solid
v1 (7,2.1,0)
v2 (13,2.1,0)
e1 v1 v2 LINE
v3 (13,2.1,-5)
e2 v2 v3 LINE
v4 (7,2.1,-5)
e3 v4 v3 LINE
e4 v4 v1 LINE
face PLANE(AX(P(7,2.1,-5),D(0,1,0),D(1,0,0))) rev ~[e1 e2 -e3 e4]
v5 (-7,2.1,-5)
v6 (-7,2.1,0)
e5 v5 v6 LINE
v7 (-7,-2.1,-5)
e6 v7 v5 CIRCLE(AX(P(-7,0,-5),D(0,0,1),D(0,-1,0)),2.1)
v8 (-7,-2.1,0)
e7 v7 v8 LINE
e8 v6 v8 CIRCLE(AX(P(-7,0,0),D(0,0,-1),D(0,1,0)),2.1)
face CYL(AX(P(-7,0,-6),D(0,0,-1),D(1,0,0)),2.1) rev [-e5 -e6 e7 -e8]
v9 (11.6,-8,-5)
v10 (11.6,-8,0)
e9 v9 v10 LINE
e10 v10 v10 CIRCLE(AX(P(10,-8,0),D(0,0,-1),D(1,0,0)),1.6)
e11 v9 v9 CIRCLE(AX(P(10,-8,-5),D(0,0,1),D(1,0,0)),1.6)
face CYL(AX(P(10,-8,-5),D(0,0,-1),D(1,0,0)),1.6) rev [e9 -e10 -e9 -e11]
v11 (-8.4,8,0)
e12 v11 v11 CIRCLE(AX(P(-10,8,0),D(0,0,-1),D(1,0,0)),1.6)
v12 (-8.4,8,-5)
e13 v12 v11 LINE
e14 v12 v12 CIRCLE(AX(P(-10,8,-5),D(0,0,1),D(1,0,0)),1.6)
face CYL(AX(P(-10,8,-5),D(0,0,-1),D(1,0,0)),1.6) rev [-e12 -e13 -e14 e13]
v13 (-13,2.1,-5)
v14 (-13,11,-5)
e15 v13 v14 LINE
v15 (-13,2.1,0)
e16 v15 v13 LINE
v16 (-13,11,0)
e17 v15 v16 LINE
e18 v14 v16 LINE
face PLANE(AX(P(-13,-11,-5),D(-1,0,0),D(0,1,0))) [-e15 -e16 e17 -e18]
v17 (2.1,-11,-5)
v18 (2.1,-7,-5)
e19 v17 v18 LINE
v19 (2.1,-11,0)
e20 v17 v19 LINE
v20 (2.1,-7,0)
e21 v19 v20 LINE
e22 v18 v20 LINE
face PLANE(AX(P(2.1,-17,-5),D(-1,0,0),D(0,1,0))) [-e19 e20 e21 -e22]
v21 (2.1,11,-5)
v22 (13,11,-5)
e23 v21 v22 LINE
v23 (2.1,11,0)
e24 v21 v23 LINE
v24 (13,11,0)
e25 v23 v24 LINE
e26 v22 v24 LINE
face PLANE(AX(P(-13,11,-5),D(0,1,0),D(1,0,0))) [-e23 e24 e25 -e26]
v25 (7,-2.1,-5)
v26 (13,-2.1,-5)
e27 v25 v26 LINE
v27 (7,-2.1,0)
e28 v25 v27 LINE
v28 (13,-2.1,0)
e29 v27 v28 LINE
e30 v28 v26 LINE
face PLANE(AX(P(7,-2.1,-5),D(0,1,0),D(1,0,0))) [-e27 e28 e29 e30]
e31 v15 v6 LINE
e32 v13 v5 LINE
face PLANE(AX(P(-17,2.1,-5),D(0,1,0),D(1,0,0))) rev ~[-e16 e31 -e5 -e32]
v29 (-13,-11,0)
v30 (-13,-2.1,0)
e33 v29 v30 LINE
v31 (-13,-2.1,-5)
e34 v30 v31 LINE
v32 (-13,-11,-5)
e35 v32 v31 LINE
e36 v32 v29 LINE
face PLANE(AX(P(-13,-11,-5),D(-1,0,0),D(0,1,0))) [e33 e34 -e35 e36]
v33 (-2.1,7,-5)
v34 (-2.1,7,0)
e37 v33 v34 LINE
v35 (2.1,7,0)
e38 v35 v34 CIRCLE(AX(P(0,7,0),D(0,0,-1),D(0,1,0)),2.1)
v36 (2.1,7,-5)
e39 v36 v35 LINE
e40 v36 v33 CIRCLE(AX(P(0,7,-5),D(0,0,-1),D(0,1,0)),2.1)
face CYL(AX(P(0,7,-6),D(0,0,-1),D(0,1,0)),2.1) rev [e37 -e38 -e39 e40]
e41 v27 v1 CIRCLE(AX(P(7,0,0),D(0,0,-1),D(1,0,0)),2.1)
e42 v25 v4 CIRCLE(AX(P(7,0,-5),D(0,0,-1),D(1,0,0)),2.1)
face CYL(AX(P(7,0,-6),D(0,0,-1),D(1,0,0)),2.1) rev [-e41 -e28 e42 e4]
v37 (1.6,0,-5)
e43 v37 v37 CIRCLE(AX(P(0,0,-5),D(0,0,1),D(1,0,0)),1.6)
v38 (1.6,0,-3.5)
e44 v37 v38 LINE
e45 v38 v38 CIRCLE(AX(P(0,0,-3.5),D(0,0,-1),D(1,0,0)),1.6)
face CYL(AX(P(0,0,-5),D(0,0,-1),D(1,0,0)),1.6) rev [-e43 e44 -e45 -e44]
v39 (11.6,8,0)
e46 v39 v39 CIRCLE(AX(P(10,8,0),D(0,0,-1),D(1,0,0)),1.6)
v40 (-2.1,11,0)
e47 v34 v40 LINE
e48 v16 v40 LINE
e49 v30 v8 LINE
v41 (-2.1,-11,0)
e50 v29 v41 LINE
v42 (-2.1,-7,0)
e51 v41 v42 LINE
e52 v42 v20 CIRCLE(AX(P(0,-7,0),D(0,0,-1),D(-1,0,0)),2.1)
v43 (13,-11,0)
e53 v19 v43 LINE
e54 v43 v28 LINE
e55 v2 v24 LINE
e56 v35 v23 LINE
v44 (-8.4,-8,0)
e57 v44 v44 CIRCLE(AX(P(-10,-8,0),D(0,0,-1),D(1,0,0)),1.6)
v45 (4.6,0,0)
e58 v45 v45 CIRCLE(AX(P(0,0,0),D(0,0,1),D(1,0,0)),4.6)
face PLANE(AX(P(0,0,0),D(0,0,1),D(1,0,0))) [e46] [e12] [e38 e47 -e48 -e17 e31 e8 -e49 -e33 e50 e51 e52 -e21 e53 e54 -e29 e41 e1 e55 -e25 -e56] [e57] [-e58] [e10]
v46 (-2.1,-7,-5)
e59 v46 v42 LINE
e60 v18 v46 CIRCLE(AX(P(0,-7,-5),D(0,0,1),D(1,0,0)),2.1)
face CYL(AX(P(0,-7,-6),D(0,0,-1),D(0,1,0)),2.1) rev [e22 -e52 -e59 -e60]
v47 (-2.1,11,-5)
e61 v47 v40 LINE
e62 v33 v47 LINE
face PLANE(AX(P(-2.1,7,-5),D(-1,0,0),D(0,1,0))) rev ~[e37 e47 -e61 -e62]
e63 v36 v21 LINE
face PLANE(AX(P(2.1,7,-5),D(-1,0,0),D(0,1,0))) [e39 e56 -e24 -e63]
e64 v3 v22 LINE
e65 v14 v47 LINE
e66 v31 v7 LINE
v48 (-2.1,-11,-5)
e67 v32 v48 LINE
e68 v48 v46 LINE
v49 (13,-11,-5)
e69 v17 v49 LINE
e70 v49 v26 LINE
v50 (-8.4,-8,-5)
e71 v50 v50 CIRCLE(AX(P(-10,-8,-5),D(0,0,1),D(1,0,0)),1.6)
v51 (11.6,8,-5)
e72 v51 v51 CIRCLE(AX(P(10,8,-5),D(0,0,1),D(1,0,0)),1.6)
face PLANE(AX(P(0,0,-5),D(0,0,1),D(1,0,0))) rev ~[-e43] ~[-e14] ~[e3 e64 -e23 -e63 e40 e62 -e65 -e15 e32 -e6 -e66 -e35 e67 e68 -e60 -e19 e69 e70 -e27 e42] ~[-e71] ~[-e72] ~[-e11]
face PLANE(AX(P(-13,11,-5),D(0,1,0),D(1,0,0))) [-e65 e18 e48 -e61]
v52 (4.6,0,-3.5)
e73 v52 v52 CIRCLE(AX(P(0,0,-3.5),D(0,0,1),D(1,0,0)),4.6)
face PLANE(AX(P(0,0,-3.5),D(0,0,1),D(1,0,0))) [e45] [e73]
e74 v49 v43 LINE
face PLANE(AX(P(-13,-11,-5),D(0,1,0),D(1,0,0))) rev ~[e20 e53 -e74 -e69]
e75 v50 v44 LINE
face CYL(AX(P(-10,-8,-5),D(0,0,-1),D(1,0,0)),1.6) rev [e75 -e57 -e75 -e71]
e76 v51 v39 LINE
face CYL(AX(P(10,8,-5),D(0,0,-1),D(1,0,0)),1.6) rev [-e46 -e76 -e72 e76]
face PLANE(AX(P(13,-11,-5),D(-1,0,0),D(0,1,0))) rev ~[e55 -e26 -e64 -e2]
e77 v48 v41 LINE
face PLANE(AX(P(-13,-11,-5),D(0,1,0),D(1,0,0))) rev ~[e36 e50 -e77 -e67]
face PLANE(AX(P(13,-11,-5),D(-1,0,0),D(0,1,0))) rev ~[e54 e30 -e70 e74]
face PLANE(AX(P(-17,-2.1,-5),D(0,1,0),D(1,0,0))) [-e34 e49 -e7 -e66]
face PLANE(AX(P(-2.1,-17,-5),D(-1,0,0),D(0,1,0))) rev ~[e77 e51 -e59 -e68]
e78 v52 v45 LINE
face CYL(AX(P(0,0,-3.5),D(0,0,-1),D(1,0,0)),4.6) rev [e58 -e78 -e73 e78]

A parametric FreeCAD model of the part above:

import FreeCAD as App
import Part
import Sketcher

V = App.Vector
Q = App.Units.Quantity


def add_polygon(sketch, points):
    """Adds a closed chain of lines whose ends are joined by coincident constraints."""
    first, n = sketch.GeometryCount, len(points)
    for a, b in zip(points, points[1:] + points[:1]):
        sketch.addGeometry(Part.LineSegment(App.Vector(*a, 0), App.Vector(*b, 0)), False)
    for i in range(n):
        sketch.addConstraint(Sketcher.Constraint("Coincident", first + i, 2, first + (i + 1) % n, 1))

doc = App.newDocument("Part")
params = doc.addObject("Spreadsheet::Sheet", "Params")
for row, (alias, value) in enumerate([
    ("sketch1_diameter", "9.2 mm"),
    ("pad1_length", "3.5 mm"),
    ("sketch2_height", "10 mm"),
    ("sketch2_width", "4.2 mm"),
    ("pad2_length", "5 mm"),
    ("sketch3_width", "10 mm"),
    ("sketch3_height", "4.2 mm"),
    ("pad3_length", "5 mm"),
    ("sketch4_height", "10 mm"),
    ("sketch4_width", "4.2 mm"),
    ("pad4_length", "5 mm"),
    ("sketch5_width", "10 mm"),
    ("sketch5_height", "4.2 mm"),
    ("pad5_length", "5 mm"),
    ("sketch6_diameter", "4.2 mm"),
    ("pad6_length", "15 mm"),
    ("sketch7_diameter", "4.2 mm"),
    ("pad7_length", "15 mm"),
    ("sketch8_diameter", "4.2 mm"),
    ("pad8_length", "15 mm"),
    ("sketch9_diameter", "4.2 mm"),
    ("pad9_length", "15 mm"),
    ("sketch10_diameter", "3.2 mm"),
    ("pad10_length", "15 mm"),
    ("sketch11_diameter", "3.2 mm"),
    ("pad11_length", "15 mm"),
    ("sketch12_diameter", "3.2 mm"),
    ("pad12_length", "15 mm"),
    ("sketch13_diameter", "3.2 mm"),
    ("pad13_length", "15 mm"),
    ("sketch14_diameter", "3.2 mm"),
    ("pad14_length", "15 mm"),
    ("sketch15_width", "26 mm"),
    ("sketch15_height", "22 mm"),
    ("pad15_length", "5 mm"),
], start=1):
    params.set(f"A{row}", alias)
    params.set(f"B{row}", "=" + value)
    params.setAlias(f"B{row}", alias)

body = doc.addObject("PartDesign::Body", "Body")

sketch1 = doc.addObject("Sketcher::SketchObject", "Sketch")
body.addObject(sketch1)
sketch1.AttachmentSupport = (doc.XY_Plane, [""])
sketch1.MapMode = "FlatFace"
sketch1.AttachmentOffset = App.Placement(V(0, 0, -3.5), App.Rotation())
sketch1.addGeometry(Part.Circle(V(0, 0, 0), V(0, 0, 1), 4.6), False)
sketch1.addConstraint([
    Sketcher.Constraint("Coincident", 0, 3, -1, 1),
    Sketcher.Constraint("Diameter", 0, Q("9.2 mm")),
])
sketch1.setExpression("Constraints[1]", "Params.sketch1_diameter")
pad1 = doc.addObject("PartDesign::Pad", "Pad")
body.addObject(pad1)
pad1.Profile = sketch1
pad1.setExpression("Length", "Params.pad1_length")
body2 = doc.addObject("PartDesign::Body", "Body001")

sketch2 = doc.addObject("Sketcher::SketchObject", "Sketch001")
body2.addObject(sketch2)
sketch2.AttachmentSupport = (doc.getObject("XY_Plane001"), [""])
sketch2.MapMode = "FlatFace"
sketch2.AttachmentOffset = App.Placement(V(0, 0, -2), App.Rotation())
add_polygon(sketch2, [(-2.1, -7), (-2.1, -17), (2.1, -17), (2.1, -7)])
sketch2.addConstraint([
    Sketcher.Constraint("Vertical", 0),
    Sketcher.Constraint("Horizontal", 1),
    Sketcher.Constraint("Vertical", 2),
    Sketcher.Constraint("Horizontal", 3),
    Sketcher.Constraint("DistanceY", 0, 2, 0, 1, Q("10 mm")),
    Sketcher.Constraint("DistanceX", 1, 1, 1, 2, Q("4.2 mm")),
    Sketcher.Constraint("DistanceY", 0, 2, -1, 1, Q("17 mm")),
    Sketcher.Constraint("DistanceX", 0, 2, -1, 1, Q("2.1 mm")),
])
sketch2.setExpression("Constraints[8]", "Params.sketch2_height")
sketch2.setExpression("Constraints[9]", "Params.sketch2_width")
pad2 = doc.addObject("PartDesign::Pad", "Pad001")
body2.addObject(pad2)
pad2.Profile = sketch2
pad2.setExpression("Length", "Params.pad2_length")
body3 = doc.addObject("PartDesign::Body", "Body002")

sketch3 = doc.addObject("Sketcher::SketchObject", "Sketch002")
body3.addObject(sketch3)
sketch3.AttachmentSupport = (doc.getObject("XY_Plane002"), [""])
sketch3.MapMode = "FlatFace"
sketch3.AttachmentOffset = App.Placement(V(0, 0, -2), App.Rotation())
add_polygon(sketch3, [(-17, 2.1), (-17, -2.1), (-7, -2.1), (-7, 2.1)])
sketch3.addConstraint([
    Sketcher.Constraint("Vertical", 0),
    Sketcher.Constraint("Horizontal", 1),
    Sketcher.Constraint("Vertical", 2),
    Sketcher.Constraint("Horizontal", 3),
    Sketcher.Constraint("DistanceX", 1, 1, 1, 2, Q("10 mm")),
    Sketcher.Constraint("DistanceY", 0, 2, 0, 1, Q("4.2 mm")),
    Sketcher.Constraint("DistanceX", 0, 2, -1, 1, Q("17 mm")),
    Sketcher.Constraint("DistanceY", 0, 2, -1, 1, Q("2.1 mm")),
])
sketch3.setExpression("Constraints[8]", "Params.sketch3_width")
sketch3.setExpression("Constraints[9]", "Params.sketch3_height")
pad3 = doc.addObject("PartDesign::Pad", "Pad002")
body3.addObject(pad3)
pad3.Profile = sketch3
pad3.setExpression("Length", "Params.pad3_length")
body4 = doc.addObject("PartDesign::Body", "Body003")

sketch4 = doc.addObject("Sketcher::SketchObject", "Sketch003")
body4.addObject(sketch4)
sketch4.AttachmentSupport = (doc.getObject("XY_Plane003"), [""])
sketch4.MapMode = "FlatFace"
sketch4.AttachmentOffset = App.Placement(V(0, 0, -2), App.Rotation())
add_polygon(sketch4, [(-2.1, 17), (-2.1, 7), (2.1, 7), (2.1, 17)])
sketch4.addConstraint([
    Sketcher.Constraint("Vertical", 0),
    Sketcher.Constraint("Horizontal", 1),
    Sketcher.Constraint("Vertical", 2),
    Sketcher.Constraint("Horizontal", 3),
    Sketcher.Constraint("DistanceY", 0, 2, 0, 1, Q("10 mm")),
    Sketcher.Constraint("DistanceX", 1, 1, 1, 2, Q("4.2 mm")),
    Sketcher.Constraint("DistanceY", -1, 1, 0, 2, Q("7 mm")),
    Sketcher.Constraint("DistanceX", 0, 2, -1, 1, Q("2.1 mm")),
])
sketch4.setExpression("Constraints[8]", "Params.sketch4_height")
sketch4.setExpression("Constraints[9]", "Params.sketch4_width")
pad4 = doc.addObject("PartDesign::Pad", "Pad003")
body4.addObject(pad4)
pad4.Profile = sketch4
pad4.setExpression("Length", "Params.pad4_length")
body5 = doc.addObject("PartDesign::Body", "Body004")
body5.AllowCompound = True

sketch5 = doc.addObject("Sketcher::SketchObject", "Sketch004")
body5.addObject(sketch5)
sketch5.AttachmentSupport = (doc.getObject("XY_Plane004"), [""])
sketch5.MapMode = "FlatFace"
sketch5.AttachmentOffset = App.Placement(V(0, 0, -2), App.Rotation())
add_polygon(sketch5, [(7, 2.1), (7, -2.1), (17, -2.1), (17, 2.1)])
sketch5.addConstraint([
    Sketcher.Constraint("Vertical", 0),
    Sketcher.Constraint("Horizontal", 1),
    Sketcher.Constraint("Vertical", 2),
    Sketcher.Constraint("Horizontal", 3),
    Sketcher.Constraint("DistanceX", 1, 1, 1, 2, Q("10 mm")),
    Sketcher.Constraint("DistanceY", 0, 2, 0, 1, Q("4.2 mm")),
    Sketcher.Constraint("DistanceX", -1, 1, 0, 2, Q("7 mm")),
    Sketcher.Constraint("DistanceY", 0, 2, -1, 1, Q("2.1 mm")),
])
sketch5.setExpression("Constraints[8]", "Params.sketch5_width")
sketch5.setExpression("Constraints[9]", "Params.sketch5_height")
pad5 = doc.addObject("PartDesign::Pad", "Pad004")
body5.addObject(pad5)
pad5.Profile = sketch5
pad5.setExpression("Length", "Params.pad5_length")
doc.recompute()

boolean = doc.addObject("PartDesign::Boolean", "Boolean")
body5.addObject(boolean)
boolean.Type = "Fuse"
boolean.addObjects([body2])
doc.recompute()

boolean2 = doc.addObject("PartDesign::Boolean", "Boolean001")
body5.addObject(boolean2)
boolean2.Type = "Fuse"
boolean2.addObjects([body3])
doc.recompute()

boolean3 = doc.addObject("PartDesign::Boolean", "Boolean002")
body5.addObject(boolean3)
boolean3.Type = "Fuse"
boolean3.addObjects([body4])
body6 = doc.addObject("PartDesign::Body", "Body005")

sketch6 = doc.addObject("Sketcher::SketchObject", "Sketch005")
body6.addObject(sketch6)
sketch6.AttachmentSupport = (doc.getObject("XY_Plane005"), [""])
sketch6.MapMode = "FlatFace"
sketch6.addGeometry(Part.Circle(V(7, 0, 0), V(0, 0, 1), 2.1), False)
sketch6.addConstraint([
    Sketcher.Constraint("PointOnObject", 0, 3, -1),
    Sketcher.Constraint("Diameter", 0, Q("4.2 mm")),
    Sketcher.Constraint("DistanceX", -1, 1, 0, 3, Q("7 mm")),
])
sketch6.setExpression("Constraints[1]", "Params.sketch6_diameter")
pad6 = doc.addObject("PartDesign::Pad", "Pad005")
body6.addObject(pad6)
pad6.Profile = sketch6
pad6.setExpression("Length", "Params.pad6_length")
body7 = doc.addObject("PartDesign::Body", "Body006")
body7.AllowCompound = True

sketch7 = doc.addObject("Sketcher::SketchObject", "Sketch006")
body7.addObject(sketch7)
sketch7.AttachmentSupport = (doc.getObject("XY_Plane006"), [""])
sketch7.MapMode = "FlatFace"
sketch7.addGeometry(Part.Circle(V(-7, 0, 0), V(0, 0, 1), 2.1), False)
sketch7.addConstraint([
    Sketcher.Constraint("PointOnObject", 0, 3, -1),
    Sketcher.Constraint("Diameter", 0, Q("4.2 mm")),
    Sketcher.Constraint("DistanceX", 0, 3, -1, 1, Q("7 mm")),
])
sketch7.setExpression("Constraints[1]", "Params.sketch7_diameter")
pad7 = doc.addObject("PartDesign::Pad", "Pad006")
body7.addObject(pad7)
pad7.Profile = sketch7
pad7.setExpression("Length", "Params.pad7_length")
doc.recompute()

boolean4 = doc.addObject("PartDesign::Boolean", "Boolean003")
body7.addObject(boolean4)
boolean4.Type = "Fuse"
boolean4.addObjects([body6])
body8 = doc.addObject("PartDesign::Body", "Body007")

sketch8 = doc.addObject("Sketcher::SketchObject", "Sketch007")
body8.addObject(sketch8)
sketch8.AttachmentSupport = (doc.getObject("XY_Plane007"), [""])
sketch8.MapMode = "FlatFace"
sketch8.addGeometry(Part.Circle(V(7, 0, 0), V(0, 0, 1), 2.1), False)
sketch8.addConstraint([
    Sketcher.Constraint("PointOnObject", 0, 3, -1),
    Sketcher.Constraint("Diameter", 0, Q("4.2 mm")),
    Sketcher.Constraint("DistanceX", -1, 1, 0, 3, Q("7 mm")),
])
sketch8.setExpression("Constraints[1]", "Params.sketch8_diameter")
pad8 = doc.addObject("PartDesign::Pad", "Pad007")
body8.addObject(pad8)
pad8.Profile = sketch8
pad8.setExpression("Length", "Params.pad8_length")
body9 = doc.addObject("PartDesign::Body", "Body008")
body9.AllowCompound = True

sketch9 = doc.addObject("Sketcher::SketchObject", "Sketch008")
body9.addObject(sketch9)
sketch9.AttachmentSupport = (doc.getObject("XY_Plane008"), [""])
sketch9.MapMode = "FlatFace"
sketch9.addGeometry(Part.Circle(V(-7, 0, 0), V(0, 0, 1), 2.1), False)
sketch9.addConstraint([
    Sketcher.Constraint("PointOnObject", 0, 3, -1),
    Sketcher.Constraint("Diameter", 0, Q("4.2 mm")),
    Sketcher.Constraint("DistanceX", 0, 3, -1, 1, Q("7 mm")),
])
sketch9.setExpression("Constraints[1]", "Params.sketch9_diameter")
pad9 = doc.addObject("PartDesign::Pad", "Pad008")
body9.addObject(pad9)
pad9.Profile = sketch9
pad9.setExpression("Length", "Params.pad9_length")
doc.recompute()

boolean5 = doc.addObject("PartDesign::Boolean", "Boolean004")
body9.addObject(boolean5)
boolean5.Type = "Fuse"
boolean5.addObjects([body8])
body10 = doc.addObject("PartDesign::Body", "Body009")
body10.AllowCompound = True
doc.recompute()

body9.Placement = App.Placement(V(0, 0, 0), App.Rotation(V(0, 0, 1), 90))
boolean6 = doc.addObject("PartDesign::Boolean", "Boolean005")
body10.addObject(boolean6)
boolean6.Type = "Fuse"
boolean6.addObjects([body9])
doc.recompute()

boolean7 = doc.addObject("PartDesign::Boolean", "Boolean006")
body10.addObject(boolean7)
boolean7.Type = "Fuse"
boolean7.addObjects([body7])
body11 = doc.addObject("PartDesign::Body", "Body010")
body11.AllowCompound = True
doc.recompute()

body10.Placement = App.Placement(V(0, 0, -3), App.Rotation(V(0, 0, 1), 0))
boolean8 = doc.addObject("PartDesign::Boolean", "Boolean007")
body11.addObject(boolean8)
boolean8.Type = "Fuse"
boolean8.addObjects([body10])
body12 = doc.addObject("PartDesign::Body", "Body011")

sketch10 = doc.addObject("Sketcher::SketchObject", "Sketch009")
body12.addObject(sketch10)
sketch10.AttachmentSupport = (doc.getObject("XY_Plane011"), [""])
sketch10.MapMode = "FlatFace"
sketch10.AttachmentOffset = App.Placement(V(0, 0, -2), App.Rotation())
sketch10.addGeometry(Part.Circle(V(-10, -8, 0), V(0, 0, 1), 1.6), False)
sketch10.addConstraint([
    Sketcher.Constraint("Diameter", 0, Q("3.2 mm")),
    Sketcher.Constraint("DistanceX", 0, 3, -1, 1, Q("10 mm")),
    Sketcher.Constraint("DistanceY", 0, 3, -1, 1, Q("8 mm")),
])
sketch10.setExpression("Constraints[0]", "Params.sketch10_diameter")
pad10 = doc.addObject("PartDesign::Pad", "Pad009")
body12.addObject(pad10)
pad10.Profile = sketch10
pad10.setExpression("Length", "Params.pad10_length")
body13 = doc.addObject("PartDesign::Body", "Body012")

sketch11 = doc.addObject("Sketcher::SketchObject", "Sketch010")
body13.addObject(sketch11)
sketch11.AttachmentSupport = (doc.getObject("XY_Plane012"), [""])
sketch11.MapMode = "FlatFace"
sketch11.AttachmentOffset = App.Placement(V(0, 0, -2), App.Rotation())
sketch11.addGeometry(Part.Circle(V(10, 8, 0), V(0, 0, 1), 1.6), False)
sketch11.addConstraint([
    Sketcher.Constraint("Diameter", 0, Q("3.2 mm")),
    Sketcher.Constraint("DistanceX", -1, 1, 0, 3, Q("10 mm")),
    Sketcher.Constraint("DistanceY", -1, 1, 0, 3, Q("8 mm")),
])
sketch11.setExpression("Constraints[0]", "Params.sketch11_diameter")
pad11 = doc.addObject("PartDesign::Pad", "Pad010")
body13.addObject(pad11)
pad11.Profile = sketch11
pad11.setExpression("Length", "Params.pad11_length")
body14 = doc.addObject("PartDesign::Body", "Body013")

sketch12 = doc.addObject("Sketcher::SketchObject", "Sketch011")
body14.addObject(sketch12)
sketch12.AttachmentSupport = (doc.getObject("XY_Plane013"), [""])
sketch12.MapMode = "FlatFace"
sketch12.AttachmentOffset = App.Placement(V(0, 0, -2), App.Rotation())
sketch12.addGeometry(Part.Circle(V(10, -8, 0), V(0, 0, 1), 1.6), False)
sketch12.addConstraint([
    Sketcher.Constraint("Diameter", 0, Q("3.2 mm")),
    Sketcher.Constraint("DistanceX", -1, 1, 0, 3, Q("10 mm")),
    Sketcher.Constraint("DistanceY", 0, 3, -1, 1, Q("8 mm")),
])
sketch12.setExpression("Constraints[0]", "Params.sketch12_diameter")
pad12 = doc.addObject("PartDesign::Pad", "Pad011")
body14.addObject(pad12)
pad12.Profile = sketch12
pad12.setExpression("Length", "Params.pad12_length")
body15 = doc.addObject("PartDesign::Body", "Body014")

sketch13 = doc.addObject("Sketcher::SketchObject", "Sketch012")
body15.addObject(sketch13)
sketch13.AttachmentSupport = (doc.getObject("XY_Plane014"), [""])
sketch13.MapMode = "FlatFace"
sketch13.AttachmentOffset = App.Placement(V(0, 0, -2), App.Rotation())
sketch13.addGeometry(Part.Circle(V(0, 0, 0), V(0, 0, 1), 1.6), False)
sketch13.addConstraint([
    Sketcher.Constraint("Coincident", 0, 3, -1, 1),
    Sketcher.Constraint("Diameter", 0, Q("3.2 mm")),
])
sketch13.setExpression("Constraints[1]", "Params.sketch13_diameter")
pad13 = doc.addObject("PartDesign::Pad", "Pad012")
body15.addObject(pad13)
pad13.Profile = sketch13
pad13.setExpression("Length", "Params.pad13_length")
body16 = doc.addObject("PartDesign::Body", "Body015")
body16.AllowCompound = True

sketch14 = doc.addObject("Sketcher::SketchObject", "Sketch013")
body16.addObject(sketch14)
sketch14.AttachmentSupport = (doc.getObject("XY_Plane015"), [""])
sketch14.MapMode = "FlatFace"
sketch14.AttachmentOffset = App.Placement(V(0, 0, -2), App.Rotation())
sketch14.addGeometry(Part.Circle(V(-10, 8, 0), V(0, 0, 1), 1.6), False)
sketch14.addConstraint([
    Sketcher.Constraint("Diameter", 0, Q("3.2 mm")),
    Sketcher.Constraint("DistanceX", 0, 3, -1, 1, Q("10 mm")),
    Sketcher.Constraint("DistanceY", -1, 1, 0, 3, Q("8 mm")),
])
sketch14.setExpression("Constraints[0]", "Params.sketch14_diameter")
pad14 = doc.addObject("PartDesign::Pad", "Pad013")
body16.addObject(pad14)
pad14.Profile = sketch14
pad14.setExpression("Length", "Params.pad14_length")
doc.recompute()

boolean9 = doc.addObject("PartDesign::Boolean", "Boolean008")
body16.addObject(boolean9)
boolean9.Type = "Fuse"
boolean9.addObjects([body12])
doc.recompute()

boolean10 = doc.addObject("PartDesign::Boolean", "Boolean009")
body16.addObject(boolean10)
boolean10.Type = "Fuse"
boolean10.addObjects([body13])
doc.recompute()

boolean11 = doc.addObject("PartDesign::Boolean", "Boolean010")
body16.addObject(boolean11)
boolean11.Type = "Fuse"
boolean11.addObjects([body14])
doc.recompute()

boolean12 = doc.addObject("PartDesign::Boolean", "Boolean011")
body16.addObject(boolean12)
boolean12.Type = "Fuse"
boolean12.addObjects([body15])
body17 = doc.addObject("PartDesign::Body", "Body016")

sketch15 = doc.addObject("Sketcher::SketchObject", "Sketch014")
body17.addObject(sketch15)
sketch15.AttachmentSupport = (doc.getObject("XY_Plane016"), [""])
sketch15.MapMode = "FlatFace"
sketch15.AttachmentOffset = App.Placement(V(0, 0, -2), App.Rotation())
add_polygon(sketch15, [(-13, 11), (-13, -11), (13, -11), (13, 11)])
sketch15.addConstraint([
    Sketcher.Constraint("Vertical", 0),
    Sketcher.Constraint("Horizontal", 1),
    Sketcher.Constraint("Vertical", 2),
    Sketcher.Constraint("Horizontal", 3),
    Sketcher.Constraint("Symmetric", 0, 2, 2, 2, -1, 1),
    Sketcher.Constraint("DistanceX", 1, 1, 1, 2, Q("26 mm")),
    Sketcher.Constraint("DistanceY", 0, 2, 0, 1, Q("22 mm")),
])
sketch15.setExpression("Constraints[9]", "Params.sketch15_width")
sketch15.setExpression("Constraints[10]", "Params.sketch15_height")
pad15 = doc.addObject("PartDesign::Pad", "Pad014")
body17.addObject(pad15)
pad15.Profile = sketch15
pad15.setExpression("Length", "Params.pad15_length")
doc.recompute()

boolean13 = doc.addObject("PartDesign::Boolean", "Boolean012")
body17.addObject(boolean13)
boolean13.Type = "Cut"
boolean13.addObjects([body16])
doc.recompute()

boolean14 = doc.addObject("PartDesign::Boolean", "Boolean013")
body17.addObject(boolean14)
boolean14.Type = "Cut"
boolean14.addObjects([body11])
doc.recompute()

boolean15 = doc.addObject("PartDesign::Boolean", "Boolean014")
body17.addObject(boolean15)
boolean15.Type = "Cut"
boolean15.addObjects([body5])
body18 = doc.addObject("PartDesign::Body", "Body017")
doc.recompute()

body17.Placement = App.Placement(V(0, 0, -3), App.Rotation(V(0, 0, 1), 0))
boolean16 = doc.addObject("PartDesign::Boolean", "Boolean015")
body18.addObject(boolean16)
boolean16.Type = "Fuse"
boolean16.addObjects([body17])
doc.recompute()

boolean17 = doc.addObject("PartDesign::Boolean", "Boolean016")
body18.addObject(boolean17)
boolean17.Type = "Cut"
boolean17.addObjects([body])

doc.recompute()
